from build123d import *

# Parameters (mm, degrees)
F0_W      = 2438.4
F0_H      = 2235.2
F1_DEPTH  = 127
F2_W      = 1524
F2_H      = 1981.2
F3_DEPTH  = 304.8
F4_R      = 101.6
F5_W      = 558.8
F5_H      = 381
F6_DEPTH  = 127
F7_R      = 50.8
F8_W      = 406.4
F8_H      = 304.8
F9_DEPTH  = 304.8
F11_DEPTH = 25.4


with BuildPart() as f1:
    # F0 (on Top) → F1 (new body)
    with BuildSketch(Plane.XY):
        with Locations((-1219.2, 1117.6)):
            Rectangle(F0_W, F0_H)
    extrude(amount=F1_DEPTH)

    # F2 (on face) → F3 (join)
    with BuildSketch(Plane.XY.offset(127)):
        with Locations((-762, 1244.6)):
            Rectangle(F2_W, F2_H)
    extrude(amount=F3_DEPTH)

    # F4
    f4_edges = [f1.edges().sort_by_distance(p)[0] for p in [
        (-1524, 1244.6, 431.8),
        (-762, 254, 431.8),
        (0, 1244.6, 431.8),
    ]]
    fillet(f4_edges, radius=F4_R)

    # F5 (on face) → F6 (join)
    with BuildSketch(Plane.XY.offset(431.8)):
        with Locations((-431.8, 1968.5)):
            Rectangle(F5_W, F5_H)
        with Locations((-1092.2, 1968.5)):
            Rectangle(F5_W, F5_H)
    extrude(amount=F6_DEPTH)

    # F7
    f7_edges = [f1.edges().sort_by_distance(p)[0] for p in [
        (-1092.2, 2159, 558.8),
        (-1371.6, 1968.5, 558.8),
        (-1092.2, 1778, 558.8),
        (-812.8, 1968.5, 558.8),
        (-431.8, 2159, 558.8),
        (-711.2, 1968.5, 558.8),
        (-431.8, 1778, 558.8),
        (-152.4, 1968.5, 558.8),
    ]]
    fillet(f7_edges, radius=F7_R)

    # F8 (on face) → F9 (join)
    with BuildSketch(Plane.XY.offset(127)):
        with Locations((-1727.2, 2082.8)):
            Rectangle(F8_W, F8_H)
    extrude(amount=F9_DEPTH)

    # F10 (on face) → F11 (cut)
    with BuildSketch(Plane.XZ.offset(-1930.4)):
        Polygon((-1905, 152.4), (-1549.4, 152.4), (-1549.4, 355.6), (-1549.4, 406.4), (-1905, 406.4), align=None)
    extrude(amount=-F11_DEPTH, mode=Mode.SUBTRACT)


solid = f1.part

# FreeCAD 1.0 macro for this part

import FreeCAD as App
import Part
import Sketcher
from FreeCAD import Vector
Q = App.Units.Quantity


def edges_at(feature, points):
    """Names of the edges that pass closest to the given points."""
    edges = feature.Shape.Edges
    near = lambda p: min(range(len(edges)), key=lambda i: edges[i].distToShape(Part.Vertex(*p))[0])
    return sorted({f"Edge{near(p) + 1}" for p in points})


def add_polygon(sketch, points):
    """Adds a closed chain of lines whose ends are joined by coincident constraints."""
    first, n = sketch.GeometryCount, len(points)
    for a, b in zip(points, points[1:] + points[:1]):
        sketch.addGeometry(Part.LineSegment(App.Vector(*a, 0), App.Vector(*b, 0)), False)
    for i in range(n):
        sketch.addConstraint(Sketcher.Constraint("Coincident", first + i, 2, first + (i + 1) % n, 1))

doc = App.newDocument("Part")
body = doc.addObject("PartDesign::Body", "Body")

# Sketch on XY plane
sketch1 = body.newObject("Sketcher::SketchObject", "Sketch")
sketch1.AttachmentSupport = (doc.getObject("XY_Plane"), [""])
sketch1.MapMode = "FlatFace"
add_polygon(sketch1, [(-2438, 2235), (-2438, 0), (0, 0), (0, 2235)])  # lines 0-3
sketch1.addConstraint([
    Sketcher.Constraint("Vertical", 0),
    Sketcher.Constraint("Horizontal", 1),
    Sketcher.Constraint("Vertical", 2),
    Sketcher.Constraint("Horizontal", 3),
    Sketcher.Constraint("Coincident", 1, 2, -1, 1),
    Sketcher.Constraint("DistanceX", 1, 1, 1, 2, Q("96 in")),
    Sketcher.Constraint("DistanceY", 0, 2, 0, 1, Q("88 in")),
])
pad1 = body.newObject("PartDesign::Pad", "Pad")
pad1.Profile = sketch1
pad1.Length = Q("5 in")

# Sketch on XY plane
sketch2 = body.newObject("Sketcher::SketchObject", "Sketch001")
sketch2.AttachmentSupport = (doc.getObject("XY_Plane"), [""])
sketch2.MapMode = "FlatFace"
sketch2.AttachmentOffset = App.Placement(Vector(0, 0, 5 * 25.4), App.Rotation())
add_polygon(sketch2, [(-1524, 2235), (-1524, 254), (0, 254), (0, 2235)])  # lines 0-3
sketch2.addConstraint([
    Sketcher.Constraint("Vertical", 0),
    Sketcher.Constraint("Horizontal", 1),
    Sketcher.Constraint("Vertical", 2),
    Sketcher.Constraint("Horizontal", 3),
    Sketcher.Constraint("PointOnObject", 1, 2, -2),
    Sketcher.Constraint("DistanceX", 1, 1, 1, 2, Q("60 in")),
    Sketcher.Constraint("DistanceY", 0, 2, 0, 1, Q("78 in")),
    Sketcher.Constraint("DistanceY", -1, 1, 0, 2, Q("10 in")),
])
pad2 = body.newObject("PartDesign::Pad", "Pad001")
pad2.Profile = sketch2
pad2.Length = Q("12 in")
doc.recompute()

fillet = body.newObject("PartDesign::Fillet", "Fillet")
fillet.Base = (pad2, edges_at(pad2, [(-1524, 1244.6, 431.8), (-762, 254, 431.8), (0, 1244.6, 431.8)]))
fillet.Radius = Q("4 in")

# Sketch on XY plane
sketch3 = body.newObject("Sketcher::SketchObject", "Sketch002")
sketch3.AttachmentSupport = (doc.getObject("XY_Plane"), [""])
sketch3.MapMode = "FlatFace"
sketch3.AttachmentOffset = App.Placement(Vector(0, 0, 17 * 25.4), App.Rotation())
add_polygon(sketch3, [(-711, 2159), (-711, 1778), (-152, 1778), (-152, 2159)])  # lines 0-3
add_polygon(sketch3, [(-1372, 2159), (-1372, 1778), (-813, 1778), (-813, 2159)])  # lines 4-7
sketch3.addConstraint([
    Sketcher.Constraint("Vertical", 0),
    Sketcher.Constraint("Horizontal", 1),
    Sketcher.Constraint("Vertical", 2),
    Sketcher.Constraint("Horizontal", 3),
    Sketcher.Constraint("Vertical", 4),
    Sketcher.Constraint("Horizontal", 5),
    Sketcher.Constraint("Vertical", 6),
    Sketcher.Constraint("Horizontal", 7),
    Sketcher.Constraint("Horizontal", 1, 2, 4, 2),
    Sketcher.Constraint("Horizontal", 3, 2, 6, 2),
    Sketcher.Constraint("Equal", 3, 5),
    Sketcher.Constraint("DistanceX", 1, 1, 1, 2, Q("22 in")),
    Sketcher.Constraint("DistanceY", 0, 2, 0, 1, Q("15 in")),
    Sketcher.Constraint("DistanceX", 0, 2, -1, 1, Q("28 in")),
    Sketcher.Constraint("DistanceY", -1, 1, 0, 2, Q("70 in")),
    Sketcher.Constraint("DistanceX", 4, 2, -1, 1, Q("54 in")),
])
pad3 = body.newObject("PartDesign::Pad", "Pad002")
pad3.Profile = sketch3
pad3.Length = Q("5 in")
doc.recompute()

fillet2 = body.newObject("PartDesign::Fillet", "Fillet001")
fillet2.Base = (pad3, edges_at(pad3, [
    (-1092.2, 2159, 558.8),
    (-1371.6, 1968.5, 558.8),
    (-1092.2, 1778, 558.8),
    (-812.8, 1968.5, 558.8),
    (-431.8, 2159, 558.8),
    (-711.2, 1968.5, 558.8),
    (-431.8, 1778, 558.8),
    (-152.4, 1968.5, 558.8),
]))
fillet2.Radius = Q("2 in")

# Sketch on XY plane
sketch4 = body.newObject("Sketcher::SketchObject", "Sketch003")
sketch4.AttachmentSupport = (doc.getObject("XY_Plane"), [""])
sketch4.MapMode = "FlatFace"
sketch4.AttachmentOffset = App.Placement(Vector(0, 0, 5 * 25.4), App.Rotation())
add_polygon(sketch4, [(-1930, 2235), (-1930, 1930), (-1524, 1930), (-1524, 2235)])  # lines 0-3
sketch4.addConstraint([
    Sketcher.Constraint("Vertical", 0),
    Sketcher.Constraint("Horizontal", 1),
    Sketcher.Constraint("Vertical", 2),
    Sketcher.Constraint("Horizontal", 3),
    Sketcher.Constraint("DistanceX", 1, 1, 1, 2, Q("16 in")),
    Sketcher.Constraint("DistanceY", 0, 2, 0, 1, Q("12 in")),
    Sketcher.Constraint("DistanceX", 0, 2, -1, 1, Q("76 in")),
    Sketcher.Constraint("DistanceY", -1, 1, 0, 2, Q("76 in")),
])
pad4 = body.newObject("PartDesign::Pad", "Pad003")
pad4.Profile = sketch4
pad4.Length = Q("12 in")

# Sketch on XZ plane
sketch5 = body.newObject("Sketcher::SketchObject", "Sketch004")
sketch5.AttachmentSupport = (doc.getObject("XZ_Plane"), [""])
sketch5.MapMode = "FlatFace"
sketch5.AttachmentOffset = App.Placement(Vector(0, 0, -76 * 25.4), App.Rotation())
add_polygon(sketch5, [(-1905, 152), (-1549, 152), (-1549, 406), (-1905, 406)])  # lines 0-3
sketch5.addConstraint([
    Sketcher.Constraint("Horizontal", 0),
    Sketcher.Constraint("Vertical", 1),
    Sketcher.Constraint("Horizontal", 2),
    Sketcher.Constraint("Vertical", 3),
    Sketcher.Constraint("DistanceX", 0, 1, 0, 2, Q("14 in")),
    Sketcher.Constraint("DistanceY", 1, 1, 1, 2, Q("10 in")),
    Sketcher.Constraint("DistanceX", 0, 2, -1, 1, Q("61 in")),
    Sketcher.Constraint("DistanceY", -1, 1, 0, 2, Q("6 in")),
])
pocket1 = body.newObject("PartDesign::Pocket", "Pocket")
pocket1.Profile = sketch5
pocket1.Length = Q("1 in")

doc.recompute()
